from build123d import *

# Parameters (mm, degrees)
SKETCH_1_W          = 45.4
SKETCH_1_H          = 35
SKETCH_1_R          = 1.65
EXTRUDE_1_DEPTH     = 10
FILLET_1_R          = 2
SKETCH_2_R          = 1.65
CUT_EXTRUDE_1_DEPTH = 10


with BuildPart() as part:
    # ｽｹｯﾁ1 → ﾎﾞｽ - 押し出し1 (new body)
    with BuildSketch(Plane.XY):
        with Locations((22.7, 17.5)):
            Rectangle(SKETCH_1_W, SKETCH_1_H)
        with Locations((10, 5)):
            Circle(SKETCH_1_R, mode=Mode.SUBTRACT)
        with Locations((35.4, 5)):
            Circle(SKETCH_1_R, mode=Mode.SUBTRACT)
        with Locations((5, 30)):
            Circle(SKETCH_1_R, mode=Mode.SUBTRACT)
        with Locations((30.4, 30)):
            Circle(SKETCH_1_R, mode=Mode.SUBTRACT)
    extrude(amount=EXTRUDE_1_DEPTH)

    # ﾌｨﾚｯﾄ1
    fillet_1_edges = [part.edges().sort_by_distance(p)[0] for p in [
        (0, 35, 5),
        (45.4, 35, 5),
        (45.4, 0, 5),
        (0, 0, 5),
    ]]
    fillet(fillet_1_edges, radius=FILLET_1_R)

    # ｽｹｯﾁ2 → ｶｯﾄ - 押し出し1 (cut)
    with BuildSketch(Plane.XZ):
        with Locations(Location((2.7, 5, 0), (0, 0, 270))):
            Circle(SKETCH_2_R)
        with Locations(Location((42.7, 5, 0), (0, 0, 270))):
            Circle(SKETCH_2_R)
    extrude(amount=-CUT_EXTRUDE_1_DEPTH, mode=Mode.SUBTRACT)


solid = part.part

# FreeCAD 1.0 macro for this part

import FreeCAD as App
import Part
import Sketcher

V = App.Vector


def edges_at(feature, points):
    """Names of the edges that pass closest to the given points."""
    edges = feature.Shape.Edges
    near = lambda p: min(range(len(edges)), key=lambda i: edges[i].distToShape(Part.Vertex(*p))[0])
    return sorted({f"Edge{near(p) + 1}" for p in points})

doc = App.newDocument("Part")
params = doc.addObject("Spreadsheet::Sheet", "Params")
for row, (alias, value) in enumerate([
    ("sketch1_diameter", "3.3 mm"),
    ("sketch1_height", "35 mm"),
    ("sketch1_width", "45.4 mm"),
    ("pad1_length", "10 mm"),
    ("fillet_radius", "2 mm"),
    ("sketch2_diameter", "3.3 mm"),
    ("pocket1_length", "10 mm"),
], start=1):
    params.set(f"A{row}", alias)
    params.set(f"B{row}", "=" + value)
    params.setAlias(f"B{row}", alias)

body = doc.addObject("PartDesign::Body", "Body")

# Sketch on XY plane
sketch1 = doc.addObject("Sketcher::SketchObject", "Sketch")
body.addObject(sketch1)
sketch1.AttachmentSupport = (doc.XY_Plane, [""])
sketch1.MapMode = "FlatFace"
sketch1.addGeometry(Part.LineSegment(V(0, 35, 0), V(0, 0, 0)), False)
sketch1.addGeometry(Part.LineSegment(V(0, 0, 0), V(45.4, 0, 0)), False)
sketch1.addGeometry(Part.LineSegment(V(45.4, 0, 0), V(45.4, 35, 0)), False)
sketch1.addGeometry(Part.LineSegment(V(45.4, 35, 0), V(0, 35, 0)), False)
sketch1.addGeometry(Part.Circle(V(10, 5, 0), V(0, 0, 1), 1.65), False)
sketch1.addGeometry(Part.Circle(V(35.4, 5, 0), V(0, 0, 1), 1.65), False)
sketch1.addGeometry(Part.Circle(V(5, 30, 0), V(0, 0, 1), 1.65), False)
sketch1.addGeometry(Part.Circle(V(30.4, 30, 0), V(0, 0, 1), 1.65), False)
sketch1.addConstraint(Sketcher.Constraint("Coincident", 0, 2, 1, 1))
sketch1.addConstraint(Sketcher.Constraint("Coincident", 1, 2, 2, 1))
sketch1.addConstraint(Sketcher.Constraint("Coincident", 2, 2, 3, 1))
sketch1.addConstraint(Sketcher.Constraint("Coincident", 3, 2, 0, 1))
sketch1.addConstraint(Sketcher.Constraint("Vertical", 0))
sketch1.addConstraint(Sketcher.Constraint("Horizontal", 1))
sketch1.addConstraint(Sketcher.Constraint("Vertical", 2))
sketch1.addConstraint(Sketcher.Constraint("Horizontal", 3))
sketch1.addConstraint(Sketcher.Constraint("Coincident", 0, 2, -1, 1))
sketch1.addConstraint(Sketcher.Constraint("Equal", 4, 5))
sketch1.addConstraint(Sketcher.Constraint("Equal", 5, 6))
sketch1.addConstraint(Sketcher.Constraint("Equal", 6, 7))
sketch1.addConstraint(Sketcher.Constraint("Horizontal", 4, 3, 5, 3))
sketch1.addConstraint(Sketcher.Constraint("Horizontal", 6, 3, 7, 3))
sketch1.addConstraint(Sketcher.Constraint("Diameter", 4, 3.3))
sketch1.addConstraint(Sketcher.Constraint("DistanceY", 0, 2, 0, 1, 35.0))
sketch1.addConstraint(Sketcher.Constraint("DistanceX", 1, 1, 1, 2, 45.4))
sketch1.addConstraint(Sketcher.Constraint("DistanceX", -1, 1, 4, 3, 10.0))
sketch1.addConstraint(Sketcher.Constraint("DistanceY", -1, 1, 4, 3, 5.0))
sketch1.addConstraint(Sketcher.Constraint("DistanceX", -1, 1, 6, 3, 5.0))
sketch1.addConstraint(Sketcher.Constraint("DistanceY", -1, 1, 6, 3, 30.0))
sketch1.addConstraint(Sketcher.Constraint("DistanceX", 7, 3, 5, 3, 5.0))
sketch1.addConstraint(Sketcher.Constraint("DistanceX", 5, 3, 1, 2, 10.0))
sketch1.setExpression("Constraints[14]", "Params.sketch1_diameter")
sketch1.setExpression("Constraints[15]", "Params.sketch1_height")
sketch1.setExpression("Constraints[16]", "Params.sketch1_width")
pad1 = doc.addObject("PartDesign::Pad", "Pad")
body.addObject(pad1)
pad1.Profile = sketch1
pad1.setExpression("Length", "Params.pad1_length")
doc.recompute()

fillet = doc.addObject("PartDesign::Fillet", "Fillet")
body.addObject(fillet)
fillet.Base = (pad1, edges_at(pad1, [
    (0, 35, 5),
    (45.4, 35, 5),
    (45.4, 0, 5),
    (0, 0, 5),
]))
fillet.setExpression("Radius", "Params.fillet_radius")

# Sketch on XZ plane
sketch2 = doc.addObject("Sketcher::SketchObject", "Sketch001")
body.addObject(sketch2)
sketch2.AttachmentSupport = (doc.XZ_Plane, [""])
sketch2.MapMode = "FlatFace"
sketch2.addGeometry(Part.Circle(V(2.7, 5, 0), V(0, 0, 1), 1.65), False)
sketch2.addGeometry(Part.Circle(V(42.7, 5, 0), V(0, 0, 1), 1.65), False)
sketch2.addConstraint(Sketcher.Constraint("Equal", 0, 1))
sketch2.addConstraint(Sketcher.Constraint("Horizontal", 0, 3, 1, 3))
sketch2.addConstraint(Sketcher.Constraint("Diameter", 0, 3.3))
sketch2.addConstraint(Sketcher.Constraint("DistanceY", -1, 1, 0, 3, 5.0))
sketch2.addConstraint(Sketcher.Constraint("DistanceX", 0, 3, 1, 3, 40.0))
sketch2.addConstraint(Sketcher.Constraint("DistanceX", -1, 1, 0, 3, 2.7))
sketch2.setExpression("Constraints[2]", "Params.sketch2_diameter")
pocket1 = doc.addObject("PartDesign::Pocket", "Pocket")
body.addObject(pocket1)
pocket1.Profile = sketch2
pocket1.setExpression("Length", "Params.pocket1_length")

doc.recompute()
